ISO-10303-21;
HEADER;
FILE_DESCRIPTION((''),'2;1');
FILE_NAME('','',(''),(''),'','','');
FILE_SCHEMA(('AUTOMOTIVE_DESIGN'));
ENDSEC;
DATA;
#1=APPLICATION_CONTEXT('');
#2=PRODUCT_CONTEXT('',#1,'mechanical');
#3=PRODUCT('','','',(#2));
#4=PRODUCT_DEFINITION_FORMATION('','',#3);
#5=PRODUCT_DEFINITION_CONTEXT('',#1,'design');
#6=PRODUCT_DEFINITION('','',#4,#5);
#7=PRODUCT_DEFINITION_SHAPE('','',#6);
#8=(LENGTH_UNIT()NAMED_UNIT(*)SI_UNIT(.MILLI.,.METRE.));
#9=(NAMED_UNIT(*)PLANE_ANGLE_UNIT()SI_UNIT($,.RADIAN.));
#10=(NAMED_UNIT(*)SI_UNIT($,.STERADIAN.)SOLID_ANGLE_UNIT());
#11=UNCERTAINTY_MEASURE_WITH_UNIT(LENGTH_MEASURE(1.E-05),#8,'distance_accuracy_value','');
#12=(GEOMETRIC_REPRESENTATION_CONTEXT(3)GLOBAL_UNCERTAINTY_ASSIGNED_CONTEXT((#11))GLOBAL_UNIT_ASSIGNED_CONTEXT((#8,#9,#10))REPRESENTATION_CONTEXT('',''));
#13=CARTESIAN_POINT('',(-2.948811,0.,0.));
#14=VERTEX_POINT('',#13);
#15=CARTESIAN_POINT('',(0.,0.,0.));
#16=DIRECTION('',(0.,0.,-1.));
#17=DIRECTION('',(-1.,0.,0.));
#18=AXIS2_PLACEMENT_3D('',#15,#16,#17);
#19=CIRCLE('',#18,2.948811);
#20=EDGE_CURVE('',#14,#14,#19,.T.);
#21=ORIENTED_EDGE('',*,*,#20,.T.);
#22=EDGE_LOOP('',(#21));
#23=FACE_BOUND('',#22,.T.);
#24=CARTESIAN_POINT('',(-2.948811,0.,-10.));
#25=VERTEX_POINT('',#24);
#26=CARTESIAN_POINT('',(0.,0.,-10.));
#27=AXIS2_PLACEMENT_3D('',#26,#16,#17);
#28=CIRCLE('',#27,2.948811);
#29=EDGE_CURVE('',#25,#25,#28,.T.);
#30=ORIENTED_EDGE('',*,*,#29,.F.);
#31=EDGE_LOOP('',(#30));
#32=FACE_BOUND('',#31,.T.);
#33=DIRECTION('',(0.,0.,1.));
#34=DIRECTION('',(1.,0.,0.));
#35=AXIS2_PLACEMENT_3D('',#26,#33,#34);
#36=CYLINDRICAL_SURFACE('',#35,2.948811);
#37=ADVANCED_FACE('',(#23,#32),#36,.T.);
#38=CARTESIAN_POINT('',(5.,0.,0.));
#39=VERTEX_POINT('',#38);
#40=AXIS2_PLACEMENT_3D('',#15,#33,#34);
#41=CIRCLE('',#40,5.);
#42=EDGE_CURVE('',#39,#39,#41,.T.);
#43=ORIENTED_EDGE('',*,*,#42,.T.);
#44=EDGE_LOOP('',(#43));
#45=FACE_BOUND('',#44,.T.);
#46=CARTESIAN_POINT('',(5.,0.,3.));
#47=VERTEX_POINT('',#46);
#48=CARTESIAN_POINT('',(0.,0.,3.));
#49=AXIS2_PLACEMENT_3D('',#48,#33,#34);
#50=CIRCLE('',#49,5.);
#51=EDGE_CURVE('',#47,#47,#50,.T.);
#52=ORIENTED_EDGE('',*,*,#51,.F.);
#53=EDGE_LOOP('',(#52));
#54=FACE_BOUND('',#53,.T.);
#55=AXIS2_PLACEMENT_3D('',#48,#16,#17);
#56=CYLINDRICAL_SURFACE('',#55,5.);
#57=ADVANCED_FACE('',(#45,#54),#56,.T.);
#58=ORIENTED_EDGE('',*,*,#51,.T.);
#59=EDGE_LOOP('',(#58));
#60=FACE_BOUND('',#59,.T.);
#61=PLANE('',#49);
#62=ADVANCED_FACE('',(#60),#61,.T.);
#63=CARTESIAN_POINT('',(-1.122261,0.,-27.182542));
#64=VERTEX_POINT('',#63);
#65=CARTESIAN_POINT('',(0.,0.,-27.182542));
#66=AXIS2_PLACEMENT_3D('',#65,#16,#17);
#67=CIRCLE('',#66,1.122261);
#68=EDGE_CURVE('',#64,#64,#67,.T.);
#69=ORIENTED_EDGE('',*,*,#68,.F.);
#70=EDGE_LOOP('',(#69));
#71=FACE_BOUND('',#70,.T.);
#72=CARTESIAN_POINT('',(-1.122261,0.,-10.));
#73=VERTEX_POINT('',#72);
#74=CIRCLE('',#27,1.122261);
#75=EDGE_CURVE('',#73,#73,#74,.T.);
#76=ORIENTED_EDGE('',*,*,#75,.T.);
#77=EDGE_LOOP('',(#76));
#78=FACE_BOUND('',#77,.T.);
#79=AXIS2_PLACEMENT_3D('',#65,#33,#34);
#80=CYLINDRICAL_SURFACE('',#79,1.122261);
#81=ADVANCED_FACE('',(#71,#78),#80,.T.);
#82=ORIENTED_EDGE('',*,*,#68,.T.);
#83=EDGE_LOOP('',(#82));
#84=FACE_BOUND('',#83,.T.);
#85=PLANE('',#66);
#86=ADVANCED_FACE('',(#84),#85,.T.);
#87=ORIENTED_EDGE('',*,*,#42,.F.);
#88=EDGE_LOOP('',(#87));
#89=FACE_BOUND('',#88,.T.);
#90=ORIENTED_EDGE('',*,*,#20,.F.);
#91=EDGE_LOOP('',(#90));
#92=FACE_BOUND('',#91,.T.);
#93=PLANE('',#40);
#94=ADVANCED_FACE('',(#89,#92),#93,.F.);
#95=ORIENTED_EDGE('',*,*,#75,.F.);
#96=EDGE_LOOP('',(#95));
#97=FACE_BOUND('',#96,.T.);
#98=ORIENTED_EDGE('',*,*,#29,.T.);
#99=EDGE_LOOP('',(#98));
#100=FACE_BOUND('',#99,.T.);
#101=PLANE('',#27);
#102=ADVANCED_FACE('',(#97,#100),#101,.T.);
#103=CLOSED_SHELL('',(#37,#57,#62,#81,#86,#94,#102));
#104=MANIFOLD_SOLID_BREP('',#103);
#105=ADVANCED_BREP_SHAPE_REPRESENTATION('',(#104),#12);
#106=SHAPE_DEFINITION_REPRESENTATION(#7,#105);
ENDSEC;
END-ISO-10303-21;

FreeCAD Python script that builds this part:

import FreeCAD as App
import Part
import Sketcher

V = App.Vector

doc = App.newDocument("Part")
params = doc.addObject("Spreadsheet::Sheet", "Params")
for row, (alias, value) in enumerate([
    ("sketch1_diameter", "10 mm"),
    ("pad1_length", "3 mm"),
    ("pad2_length", "10 mm"),
    ("pad3_length", "17.182542 mm"),
], start=1):
    params.set(f"A{row}", alias)
    params.set(f"B{row}", "=" + value)
    params.setAlias(f"B{row}", alias)

body = doc.addObject("PartDesign::Body", "Body")

# Sketch on XY plane
sketch1 = doc.addObject("Sketcher::SketchObject", "Sketch")
body.addObject(sketch1)
sketch1.AttachmentSupport = (doc.XY_Plane, [""])
sketch1.MapMode = "FlatFace"
sketch1.addGeometry(Part.Circle(V(0, 0, 0), V(0, 0, 1), 5), False)
sketch1.addConstraint([
    Sketcher.Constraint("Coincident", 0, 3, -1, 1),
    Sketcher.Constraint("Diameter", 0, 10.0),
])
sketch1.setExpression("Constraints[1]", "Params.sketch1_diameter")
pad1 = doc.addObject("PartDesign::Pad", "Pad")
body.addObject(pad1)
pad1.Profile = sketch1
pad1.setExpression("Length", "Params.pad1_length")

# Sketch on XY plane
sketch2 = doc.addObject("Sketcher::SketchObject", "Sketch001")
body.addObject(sketch2)
sketch2.AttachmentSupport = (doc.XY_Plane, [""])
sketch2.MapMode = "FlatFace"
sketch2.addGeometry(Part.Circle(V(0, 0, 0), V(0, 0, 1), 2.9), False)
sketch2.addConstraint([
    Sketcher.Constraint("Coincident", 0, 3, -1, 1),
    Sketcher.Constraint("Diameter", 0, 5.897623),
])
pad2 = doc.addObject("PartDesign::Pad", "Pad001")
body.addObject(pad2)
pad2.Profile = sketch2
pad2.setExpression("Length", "Params.pad2_length")
pad2.Reversed = True

# Sketch on XY plane
sketch3 = doc.addObject("Sketcher::SketchObject", "Sketch002")
body.addObject(sketch3)
sketch3.AttachmentSupport = (doc.XY_Plane, [""])
sketch3.MapMode = "FlatFace"
sketch3.AttachmentOffset = App.Placement(V(0, 0, -10), App.Rotation())
sketch3.addGeometry(Part.Circle(V(0, 0, 0), V(0, 0, 1), 1.1), False)
sketch3.addConstraint([
    Sketcher.Constraint("Coincident", 0, 3, -1, 1),
    Sketcher.Constraint("Diameter", 0, 2.244522),
])
pad3 = doc.addObject("PartDesign::Pad", "Pad002")
body.addObject(pad3)
pad3.Profile = sketch3
pad3.setExpression("Length", "Params.pad3_length")
pad3.Reversed = True

doc.recompute()
